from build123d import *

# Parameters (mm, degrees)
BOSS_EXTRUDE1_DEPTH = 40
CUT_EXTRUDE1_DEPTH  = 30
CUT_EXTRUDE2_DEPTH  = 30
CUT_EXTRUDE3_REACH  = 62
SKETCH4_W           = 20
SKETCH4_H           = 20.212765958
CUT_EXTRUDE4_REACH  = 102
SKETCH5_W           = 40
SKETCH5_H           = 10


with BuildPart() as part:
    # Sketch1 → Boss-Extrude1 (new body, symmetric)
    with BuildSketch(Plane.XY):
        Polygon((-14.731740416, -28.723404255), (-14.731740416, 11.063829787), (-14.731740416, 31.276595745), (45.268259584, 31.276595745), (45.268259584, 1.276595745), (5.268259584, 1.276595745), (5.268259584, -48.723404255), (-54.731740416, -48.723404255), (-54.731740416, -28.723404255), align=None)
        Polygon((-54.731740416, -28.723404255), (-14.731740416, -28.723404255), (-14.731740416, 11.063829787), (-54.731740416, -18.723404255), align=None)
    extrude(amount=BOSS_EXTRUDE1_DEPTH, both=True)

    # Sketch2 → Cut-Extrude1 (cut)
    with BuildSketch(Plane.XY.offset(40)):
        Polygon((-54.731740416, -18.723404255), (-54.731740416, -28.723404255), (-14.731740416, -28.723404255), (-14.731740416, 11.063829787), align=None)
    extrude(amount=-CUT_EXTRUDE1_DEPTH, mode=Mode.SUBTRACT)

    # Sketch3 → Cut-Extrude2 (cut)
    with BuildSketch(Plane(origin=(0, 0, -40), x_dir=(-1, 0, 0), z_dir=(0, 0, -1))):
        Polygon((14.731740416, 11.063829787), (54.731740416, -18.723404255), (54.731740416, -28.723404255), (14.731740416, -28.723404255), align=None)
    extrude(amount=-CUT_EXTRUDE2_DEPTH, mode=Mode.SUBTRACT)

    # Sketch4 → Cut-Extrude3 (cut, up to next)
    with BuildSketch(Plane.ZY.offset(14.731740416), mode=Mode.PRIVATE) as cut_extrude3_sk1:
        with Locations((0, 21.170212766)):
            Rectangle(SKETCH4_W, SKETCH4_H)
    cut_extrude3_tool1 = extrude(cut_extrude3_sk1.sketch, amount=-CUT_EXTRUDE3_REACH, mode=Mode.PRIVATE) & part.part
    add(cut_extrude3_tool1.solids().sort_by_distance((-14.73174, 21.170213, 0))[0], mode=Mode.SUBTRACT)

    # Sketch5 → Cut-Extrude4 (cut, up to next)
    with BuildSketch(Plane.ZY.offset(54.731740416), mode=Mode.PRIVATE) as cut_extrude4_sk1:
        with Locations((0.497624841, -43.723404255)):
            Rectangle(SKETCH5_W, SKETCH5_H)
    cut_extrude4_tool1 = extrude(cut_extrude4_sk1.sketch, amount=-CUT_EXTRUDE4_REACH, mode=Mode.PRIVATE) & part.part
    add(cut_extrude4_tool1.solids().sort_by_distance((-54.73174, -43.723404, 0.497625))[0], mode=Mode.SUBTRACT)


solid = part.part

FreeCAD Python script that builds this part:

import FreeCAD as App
import Part
import Sketcher
from FreeCAD import Vector

doc = App.newDocument("Part")
body = doc.addObject("PartDesign::Body", "Body")

sketch1 = body.newObject("Sketcher::SketchObject", "Sketch")
sketch1.AttachmentSupport = (doc.getObject("XY_Plane"), [""])
sketch1.MapMode = "FlatFace"
sketch1.addGeometry([
    Part.LineSegment(Vector(-15, 31, 0), Vector(-15, 11, 0)),
    Part.LineSegment(Vector(-15, 11, 0), Vector(-55, -19, 0)),
    Part.LineSegment(Vector(-55, -19, 0), Vector(-55, -49, 0)),
    Part.LineSegment(Vector(-55, -49, 0), Vector(5, -49, 0)),
    Part.LineSegment(Vector(5, -49, 0), Vector(5, 1, 0)),
    Part.LineSegment(Vector(5, 1, 0), Vector(45, 1, 0)),
    Part.LineSegment(Vector(45, 1, 0), Vector(45, 31, 0)),
    Part.LineSegment(Vector(45, 31, 0), Vector(-15, 31, 0)),
], False)
sketch1.addConstraint([
    Sketcher.Constraint("Coincident", 0, 2, 1, 1),
    Sketcher.Constraint("Coincident", 1, 2, 2, 1),
    Sketcher.Constraint("Coincident", 2, 2, 3, 1),
    Sketcher.Constraint("Coincident", 3, 2, 4, 1),
    Sketcher.Constraint("Coincident", 4, 2, 5, 1),
    Sketcher.Constraint("Coincident", 5, 2, 6, 1),
    Sketcher.Constraint("Coincident", 6, 2, 7, 1),
    Sketcher.Constraint("Coincident", 7, 2, 0, 1),
    Sketcher.Constraint("Vertical", 0),
    Sketcher.Constraint("Vertical", 2),
    Sketcher.Constraint("Horizontal", 3),
    Sketcher.Constraint("Vertical", 4),
    Sketcher.Constraint("Horizontal", 5),
    Sketcher.Constraint("Vertical", 6),
    Sketcher.Constraint("Horizontal", 7),
    Sketcher.Constraint("Equal", 3, 7),
    Sketcher.Constraint("Equal", 2, 6),
    Sketcher.Constraint("DistanceX", 3, 1, 3, 2, 60.0),
    Sketcher.Constraint("DistanceX", 5, 1, 5, 2, 40.0),
    Sketcher.Constraint("DistanceY", 2, 2, 2, 1, 30.0),
    Sketcher.Constraint("DistanceY", 4, 1, 4, 2, 50.0),
    Sketcher.Constraint("Distance", 1, 49.872631),
    Sketcher.Constraint("DistanceX", 0, 2, -1, 1, 14.73174),
    Sketcher.Constraint("DistanceY", -1, 1, 0, 2, 11.06383),
])
pad1 = body.newObject("PartDesign::Pad", "Pad")
pad1.Profile = sketch1
pad1.Length = 80
pad1.Midplane = True

sketch2 = body.newObject("Sketcher::SketchObject", "Sketch001")
sketch2.AttachmentSupport = (doc.getObject("XY_Plane"), [""])
sketch2.MapMode = "FlatFace"
sketch2.AttachmentOffset = App.Placement(Vector(0, 0, 40), App.Rotation())
sketch2.addGeometry([
    Part.LineSegment(Vector(-55, -19, 0), Vector(-55, -29, 0)),
    Part.LineSegment(Vector(-55, -29, 0), Vector(-15, -29, 0)),
    Part.LineSegment(Vector(-15, -29, 0), Vector(-15, 11, 0)),
    Part.LineSegment(Vector(-15, 11, 0), Vector(-55, -19, 0)),
], False)
sketch2.addConstraint([
    Sketcher.Constraint("Coincident", 0, 2, 1, 1),
    Sketcher.Constraint("Coincident", 1, 2, 2, 1),
    Sketcher.Constraint("Coincident", 2, 2, 3, 1),
    Sketcher.Constraint("Coincident", 3, 2, 0, 1),
    Sketcher.Constraint("Vertical", 0),
    Sketcher.Constraint("Horizontal", 1),
    Sketcher.Constraint("Vertical", 2),
    Sketcher.Constraint("DistanceX", 1, 1, 1, 2, 40.0),
    Sketcher.Constraint("DistanceY", 0, 2, 0, 1, 10.0),
    Sketcher.Constraint("Distance", 3, 49.872631),
    Sketcher.Constraint("DistanceX", 0, 2, -1, 1, 54.73174),
    Sketcher.Constraint("DistanceY", -1, 1, 2, 2, 11.06383),
])
pocket1 = body.newObject("PartDesign::Pocket", "Pocket")
pocket1.Profile = sketch2
pocket1.Length = 30

sketch3 = body.newObject("Sketcher::SketchObject", "Sketch002")
sketch3.AttachmentSupport = (doc.getObject("XY_Plane"), [""])
sketch3.MapMode = "FlatFace"
sketch3.AttachmentOffset = App.Placement(Vector(0, 0, -40), App.Rotation())
sketch3.addGeometry([
    Part.LineSegment(Vector(-55, -19, 0), Vector(-15, 11, 0)),
    Part.LineSegment(Vector(-15, 11, 0), Vector(-15, -29, 0)),
    Part.LineSegment(Vector(-15, -29, 0), Vector(-55, -29, 0)),
    Part.LineSegment(Vector(-55, -29, 0), Vector(-55, -19, 0)),
], False)
sketch3.addConstraint([
    Sketcher.Constraint("Coincident", 0, 2, 1, 1),
    Sketcher.Constraint("Coincident", 1, 2, 2, 1),
    Sketcher.Constraint("Coincident", 2, 2, 3, 1),
    Sketcher.Constraint("Coincident", 3, 2, 0, 1),
    Sketcher.Constraint("Vertical", 1),
    Sketcher.Constraint("Horizontal", 2),
    Sketcher.Constraint("Vertical", 3),
    Sketcher.Constraint("DistanceX", 2, 2, 2, 1, 40.0),
    Sketcher.Constraint("DistanceY", 3, 1, 3, 2, 10.0),
    Sketcher.Constraint("Distance", 0, 49.872631),
    Sketcher.Constraint("DistanceX", 0, 2, -1, 1, 14.73174),
    Sketcher.Constraint("DistanceY", -1, 1, 0, 2, 11.06383),
])
pocket2 = body.newObject("PartDesign::Pocket", "Pocket001")
pocket2.Profile = sketch3
pocket2.Length = 30
pocket2.Reversed = True

sketch4 = body.newObject("Sketcher::SketchObject", "Sketch003")
sketch4.AttachmentSupport = (doc.getObject("YZ_Plane"), [""])
sketch4.MapMode = "FlatFace"
sketch4.AttachmentOffset = App.Placement(Vector(0, 0, -14.73174), App.Rotation())
sketch4.addGeometry([
    Part.LineSegment(Vector(31, -10, 0), Vector(11, -10, 0)),
    Part.LineSegment(Vector(11, -10, 0), Vector(11, 10, 0)),
    Part.LineSegment(Vector(11, 10, 0), Vector(31, 10, 0)),
    Part.LineSegment(Vector(31, 10, 0), Vector(31, -10, 0)),
], False)
sketch4.addConstraint([
    Sketcher.Constraint("Coincident", 0, 2, 1, 1),
    Sketcher.Constraint("Coincident", 1, 2, 2, 1),
    Sketcher.Constraint("Coincident", 2, 2, 3, 1),
    Sketcher.Constraint("Coincident", 3, 2, 0, 1),
    Sketcher.Constraint("Horizontal", 0),
    Sketcher.Constraint("Vertical", 1),
    Sketcher.Constraint("Horizontal", 2),
    Sketcher.Constraint("Vertical", 3),
    Sketcher.Constraint("DistanceY", 1, 1, 1, 2, 20.0),
    Sketcher.Constraint("DistanceY", 0, 2, -1, 1, 10.0),
    Sketcher.Constraint("DistanceX", 0, 2, 0, 1, 20.212766),
    Sketcher.Constraint("DistanceX", -1, 1, 0, 2, 11.06383),
])
pocket3 = body.newObject("PartDesign::Pocket", "Pocket002")
pocket3.Profile = sketch4
pocket3.Type = "UpToFirst"
pocket3.Reversed = True

sketch5 = body.newObject("Sketcher::SketchObject", "Sketch004")
sketch5.AttachmentSupport = (doc.getObject("YZ_Plane"), [""])
sketch5.MapMode = "FlatFace"
sketch5.AttachmentOffset = App.Placement(Vector(0, 0, -54.73174), App.Rotation())
sketch5.addGeometry([
    Part.LineSegment(Vector(-39, -20, 0), Vector(-49, -20, 0)),
    Part.LineSegment(Vector(-49, -20, 0), Vector(-49, 20, 0)),
    Part.LineSegment(Vector(-49, 20, 0), Vector(-39, 20, 0)),
    Part.LineSegment(Vector(-39, 20, 0), Vector(-39, -20, 0)),
], False)
sketch5.addConstraint([
    Sketcher.Constraint("Coincident", 0, 2, 1, 1),
    Sketcher.Constraint("Coincident", 1, 2, 2, 1),
    Sketcher.Constraint("Coincident", 2, 2, 3, 1),
    Sketcher.Constraint("Coincident", 3, 2, 0, 1),
    Sketcher.Constraint("Horizontal", 0),
    Sketcher.Constraint("Vertical", 1),
    Sketcher.Constraint("Horizontal", 2),
    Sketcher.Constraint("Vertical", 3),
    Sketcher.Constraint("DistanceX", 0, 2, 0, 1, 10.0),
    Sketcher.Constraint("DistanceY", 1, 1, 1, 2, 40.0),
    Sketcher.Constraint("DistanceX", 0, 2, -1, 1, 48.723404),
    Sketcher.Constraint("DistanceY", 0, 2, -1, 1, 19.502375),
])
pocket4 = body.newObject("PartDesign::Pocket", "Pocket003")
pocket4.Profile = sketch5
pocket4.Type = "UpToFirst"
pocket4.Reversed = True

doc.recompute()
